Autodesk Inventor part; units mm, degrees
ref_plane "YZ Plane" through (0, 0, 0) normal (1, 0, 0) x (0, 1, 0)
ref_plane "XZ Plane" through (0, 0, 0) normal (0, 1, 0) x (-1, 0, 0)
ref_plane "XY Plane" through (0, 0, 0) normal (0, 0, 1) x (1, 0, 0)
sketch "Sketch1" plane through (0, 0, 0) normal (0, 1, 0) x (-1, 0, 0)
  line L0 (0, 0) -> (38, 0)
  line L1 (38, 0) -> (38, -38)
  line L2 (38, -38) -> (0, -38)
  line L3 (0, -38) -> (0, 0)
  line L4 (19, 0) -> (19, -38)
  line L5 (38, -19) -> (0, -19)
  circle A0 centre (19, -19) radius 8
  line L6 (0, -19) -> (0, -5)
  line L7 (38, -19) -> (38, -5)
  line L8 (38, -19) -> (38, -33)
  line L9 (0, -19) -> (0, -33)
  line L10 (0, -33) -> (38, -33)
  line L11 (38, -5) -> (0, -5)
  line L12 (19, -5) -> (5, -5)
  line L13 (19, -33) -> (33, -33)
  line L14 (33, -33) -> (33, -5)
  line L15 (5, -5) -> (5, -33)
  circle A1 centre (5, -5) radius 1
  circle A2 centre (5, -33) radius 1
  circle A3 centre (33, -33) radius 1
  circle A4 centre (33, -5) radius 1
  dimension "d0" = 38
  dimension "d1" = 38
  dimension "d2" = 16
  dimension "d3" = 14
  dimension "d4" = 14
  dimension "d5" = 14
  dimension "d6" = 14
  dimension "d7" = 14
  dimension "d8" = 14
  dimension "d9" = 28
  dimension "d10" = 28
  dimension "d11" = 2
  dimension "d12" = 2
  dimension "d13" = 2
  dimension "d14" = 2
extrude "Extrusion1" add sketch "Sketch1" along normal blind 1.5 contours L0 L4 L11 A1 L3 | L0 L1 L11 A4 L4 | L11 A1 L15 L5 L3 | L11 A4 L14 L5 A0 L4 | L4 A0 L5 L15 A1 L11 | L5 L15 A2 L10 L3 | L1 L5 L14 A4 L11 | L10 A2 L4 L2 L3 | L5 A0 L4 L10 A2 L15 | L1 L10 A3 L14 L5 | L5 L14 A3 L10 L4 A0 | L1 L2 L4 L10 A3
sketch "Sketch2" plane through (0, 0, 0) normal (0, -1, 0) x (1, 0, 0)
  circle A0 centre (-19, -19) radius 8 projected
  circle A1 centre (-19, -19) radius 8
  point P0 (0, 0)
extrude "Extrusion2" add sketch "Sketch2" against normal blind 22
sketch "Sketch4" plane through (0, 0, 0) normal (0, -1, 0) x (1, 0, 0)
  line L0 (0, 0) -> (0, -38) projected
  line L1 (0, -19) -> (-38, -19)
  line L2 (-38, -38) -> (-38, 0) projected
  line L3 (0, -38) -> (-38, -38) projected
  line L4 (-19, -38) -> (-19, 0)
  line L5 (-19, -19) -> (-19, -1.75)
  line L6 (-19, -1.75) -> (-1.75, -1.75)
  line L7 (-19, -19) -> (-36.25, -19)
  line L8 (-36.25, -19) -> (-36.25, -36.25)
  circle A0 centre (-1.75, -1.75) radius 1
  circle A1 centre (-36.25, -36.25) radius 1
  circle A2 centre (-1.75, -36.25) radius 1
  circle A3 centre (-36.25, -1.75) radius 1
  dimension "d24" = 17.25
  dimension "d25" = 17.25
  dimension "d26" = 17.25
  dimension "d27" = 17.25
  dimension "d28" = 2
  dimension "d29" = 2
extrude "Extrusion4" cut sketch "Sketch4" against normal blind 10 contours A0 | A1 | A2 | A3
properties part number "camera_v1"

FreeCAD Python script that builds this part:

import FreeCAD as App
import Part
import Sketcher
Q = App.Units.Quantity

doc = App.newDocument("Part")
body = doc.addObject("PartDesign::Body", "Body")

# Sketch on XZ plane
sketch1 = body.newObject("Sketcher::SketchObject", "Sketch")
sketch1.AttachmentSupport = (doc.getObject("XZ_Plane"), [""])
sketch1.MapMode = "FlatFace"
sketch1.addGeometry([
    Part.LineSegment(App.Vector(0, 0, 0), App.Vector(0, -38, 0)),  # 0
    Part.LineSegment(App.Vector(0, -38, 0), App.Vector(-38, -38, 0)),  # 1
    Part.LineSegment(App.Vector(-38, -38, 0), App.Vector(-38, 0, 0)),  # 2
    Part.LineSegment(App.Vector(-38, 0, 0), App.Vector(0, 0, 0)),  # 3
    Part.Circle(App.Vector(-5, -5, 0), App.Vector(0, 0, 1), 1),  # 4
    Part.Circle(App.Vector(-33, -5, 0), App.Vector(0, 0, 1), 1),  # 5
    Part.Circle(App.Vector(-19, -19, 0), App.Vector(0, 0, 1), 8),  # 6
    Part.Circle(App.Vector(-5, -33, 0), App.Vector(0, 0, 1), 1),  # 7
    Part.Circle(App.Vector(-33, -33, 0), App.Vector(0, 0, 1), 1),  # 8
], False)
sketch1.addConstraint([
    Sketcher.Constraint("Coincident", 0, 2, 1, 1),
    Sketcher.Constraint("Coincident", 1, 2, 2, 1),
    Sketcher.Constraint("Coincident", 2, 2, 3, 1),
    Sketcher.Constraint("Coincident", 3, 2, 0, 1),
    Sketcher.Constraint("Vertical", 0),
    Sketcher.Constraint("Horizontal", 1),
    Sketcher.Constraint("Vertical", 2),
    Sketcher.Constraint("Horizontal", 3),
    Sketcher.Constraint("Coincident", 3, 2, -1, 1),
    Sketcher.Constraint("Equal", 4, 5),
    Sketcher.Constraint("Equal", 5, 7),
    Sketcher.Constraint("Equal", 7, 8),
    Sketcher.Constraint("Horizontal", 4, 3, 5, 3),
    Sketcher.Constraint("Horizontal", 7, 3, 8, 3),
    Sketcher.Constraint("Vertical", 4, 3, 7, 3),
    Sketcher.Constraint("Vertical", 5, 3, 8, 3),
    Sketcher.Constraint("Equal", 3, 0),
    Sketcher.Constraint("Diameter", 4, Q("2 mm")),
    Sketcher.Constraint("Diameter", 6, Q("16 mm")),
    Sketcher.Constraint("DistanceX", 1, 2, 1, 1, Q("38 mm")),
    Sketcher.Constraint("DistanceX", 5, 3, 4, 3, Q("28 mm")),
    Sketcher.Constraint("DistanceX", 6, 3, 4, 3, Q("14 mm")),
    Sketcher.Constraint("DistanceY", 6, 3, 4, 3, Q("14 mm")),
    Sketcher.Constraint("DistanceY", 7, 3, 6, 3, Q("14 mm")),
    Sketcher.Constraint("DistanceX", 4, 3, -1, 1, Q("5 mm")),
    Sketcher.Constraint("DistanceY", 4, 3, -1, 1, Q("5 mm")),
])
pad1 = body.newObject("PartDesign::Pad", "Pad")
pad1.Profile = sketch1
pad1.Length = 1.5
pad1.Reversed = True

# Sketch on XZ plane
sketch2 = body.newObject("Sketcher::SketchObject", "Sketch001")
sketch2.AttachmentSupport = (doc.getObject("XZ_Plane"), [""])
sketch2.MapMode = "FlatFace"
sketch2.addGeometry(Part.Circle(App.Vector(-19, -19, 0), App.Vector(0, 0, 1), 8), False)
sketch2.addConstraint([
    Sketcher.Constraint("Diameter", 0, Q("16 mm")),
    Sketcher.Constraint("DistanceX", 0, 3, -1, 1, Q("19 mm")),
    Sketcher.Constraint("DistanceY", 0, 3, -1, 1, Q("19 mm")),
])
pad2 = body.newObject("PartDesign::Pad", "Pad001")
pad2.Profile = sketch2
pad2.Length = 22
pad2.Reversed = True

# Sketch on XZ plane
sketch3 = body.newObject("Sketcher::SketchObject", "Sketch002")
sketch3.AttachmentSupport = (doc.getObject("XZ_Plane"), [""])
sketch3.MapMode = "FlatFace"
sketch3.addGeometry([
    Part.Circle(App.Vector(-1.8, -1.8, 0), App.Vector(0, 0, 1), 1),
    Part.Circle(App.Vector(-36.2, -36.2, 0), App.Vector(0, 0, 1), 1),
    Part.Circle(App.Vector(-1.8, -36.2, 0), App.Vector(0, 0, 1), 1),
    Part.Circle(App.Vector(-36.2, -1.8, 0), App.Vector(0, 0, 1), 1),
], False)
sketch3.addConstraint([
    Sketcher.Constraint("Equal", 0, 1),
    Sketcher.Constraint("Equal", 1, 2),
    Sketcher.Constraint("Equal", 2, 3),
    Sketcher.Constraint("Horizontal", 1, 3, 2, 3),
    Sketcher.Constraint("Horizontal", 0, 3, 3, 3),
    Sketcher.Constraint("Vertical", 0, 3, 2, 3),
    Sketcher.Constraint("Vertical", 1, 3, 3, 3),
    Sketcher.Constraint("Diameter", 0, Q("2 mm")),
    Sketcher.Constraint("DistanceX", 1, 3, 0, 3, Q("34.5 mm")),
    Sketcher.Constraint("DistanceY", 1, 3, 0, 3, Q("34.5 mm")),
    Sketcher.Constraint("DistanceX", 0, 3, -1, 1, Q("1.75 mm")),
    Sketcher.Constraint("DistanceY", 0, 3, -1, 1, Q("1.75 mm")),
])
pocket1 = body.newObject("PartDesign::Pocket", "Pocket")
pocket1.Profile = sketch3
pocket1.Length = 10

doc.recompute()
